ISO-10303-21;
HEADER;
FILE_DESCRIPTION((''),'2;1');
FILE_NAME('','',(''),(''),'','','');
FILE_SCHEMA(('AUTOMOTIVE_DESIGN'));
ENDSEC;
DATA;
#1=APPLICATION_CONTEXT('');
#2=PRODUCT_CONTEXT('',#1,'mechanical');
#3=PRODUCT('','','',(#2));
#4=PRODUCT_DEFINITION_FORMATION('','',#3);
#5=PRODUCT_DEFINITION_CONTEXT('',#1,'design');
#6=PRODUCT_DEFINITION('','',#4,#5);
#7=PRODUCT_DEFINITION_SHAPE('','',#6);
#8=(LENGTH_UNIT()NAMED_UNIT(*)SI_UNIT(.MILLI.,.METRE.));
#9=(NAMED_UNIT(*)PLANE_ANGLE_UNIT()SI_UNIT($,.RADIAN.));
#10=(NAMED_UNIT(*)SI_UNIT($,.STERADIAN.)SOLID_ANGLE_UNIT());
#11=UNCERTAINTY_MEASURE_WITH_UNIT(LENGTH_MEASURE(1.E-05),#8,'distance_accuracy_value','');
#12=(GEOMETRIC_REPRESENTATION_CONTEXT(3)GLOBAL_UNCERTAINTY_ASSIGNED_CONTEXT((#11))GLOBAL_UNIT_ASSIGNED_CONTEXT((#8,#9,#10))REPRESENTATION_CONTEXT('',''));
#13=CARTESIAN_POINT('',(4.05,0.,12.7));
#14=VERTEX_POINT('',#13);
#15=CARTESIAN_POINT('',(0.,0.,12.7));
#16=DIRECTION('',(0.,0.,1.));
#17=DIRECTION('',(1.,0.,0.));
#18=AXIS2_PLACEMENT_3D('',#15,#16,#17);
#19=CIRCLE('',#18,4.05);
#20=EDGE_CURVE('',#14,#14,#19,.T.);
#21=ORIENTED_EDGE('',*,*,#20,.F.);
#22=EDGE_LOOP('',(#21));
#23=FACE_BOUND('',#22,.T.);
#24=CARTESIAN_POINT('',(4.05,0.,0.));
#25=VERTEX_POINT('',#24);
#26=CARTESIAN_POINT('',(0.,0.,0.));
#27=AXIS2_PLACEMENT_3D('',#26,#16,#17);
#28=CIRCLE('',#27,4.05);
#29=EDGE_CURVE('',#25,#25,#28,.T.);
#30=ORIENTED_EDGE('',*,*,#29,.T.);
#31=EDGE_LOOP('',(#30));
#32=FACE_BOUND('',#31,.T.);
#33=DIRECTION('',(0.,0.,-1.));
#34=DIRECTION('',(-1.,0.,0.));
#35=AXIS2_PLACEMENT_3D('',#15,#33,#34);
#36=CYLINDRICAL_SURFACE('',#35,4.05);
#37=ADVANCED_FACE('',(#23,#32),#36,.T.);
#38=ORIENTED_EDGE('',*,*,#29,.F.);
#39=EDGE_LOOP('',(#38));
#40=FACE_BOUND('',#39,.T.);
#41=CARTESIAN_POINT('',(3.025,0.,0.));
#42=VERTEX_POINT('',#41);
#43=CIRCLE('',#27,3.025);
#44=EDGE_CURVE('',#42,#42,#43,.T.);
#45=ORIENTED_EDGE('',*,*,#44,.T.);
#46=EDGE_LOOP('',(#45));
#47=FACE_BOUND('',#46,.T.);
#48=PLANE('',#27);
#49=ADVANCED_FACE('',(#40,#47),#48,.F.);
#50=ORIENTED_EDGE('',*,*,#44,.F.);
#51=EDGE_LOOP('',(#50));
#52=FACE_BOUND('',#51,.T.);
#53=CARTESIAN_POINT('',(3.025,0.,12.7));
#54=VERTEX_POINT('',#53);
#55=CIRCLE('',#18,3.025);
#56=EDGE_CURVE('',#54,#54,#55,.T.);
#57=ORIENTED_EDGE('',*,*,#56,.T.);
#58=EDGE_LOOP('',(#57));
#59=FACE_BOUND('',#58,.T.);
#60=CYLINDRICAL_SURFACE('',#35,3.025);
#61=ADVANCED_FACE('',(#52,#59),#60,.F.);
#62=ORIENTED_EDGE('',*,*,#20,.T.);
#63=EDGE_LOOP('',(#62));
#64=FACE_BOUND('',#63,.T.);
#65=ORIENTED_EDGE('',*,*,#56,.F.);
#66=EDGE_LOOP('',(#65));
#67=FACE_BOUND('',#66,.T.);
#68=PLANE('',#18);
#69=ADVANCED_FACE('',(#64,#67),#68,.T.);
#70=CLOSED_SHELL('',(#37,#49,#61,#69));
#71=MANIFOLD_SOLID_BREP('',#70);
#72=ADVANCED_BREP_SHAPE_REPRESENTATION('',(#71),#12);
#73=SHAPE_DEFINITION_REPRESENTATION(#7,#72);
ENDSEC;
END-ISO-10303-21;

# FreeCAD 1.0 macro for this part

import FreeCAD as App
import Part
import Sketcher

V = App.Vector
Q = App.Units.Quantity

doc = App.newDocument("Part")
body = doc.addObject("PartDesign::Body", "Body")

sketch1 = body.newObject("Sketcher::SketchObject", "Sketch")
sketch1.AttachmentSupport = (doc.getObject("XY_Plane"), [""])
sketch1.MapMode = "FlatFace"
sketch1.addGeometry(Part.Circle(V(0, 0, 0), V(0, 0, 1), 4.05), False)
sketch1.addGeometry(Part.Circle(V(0, 0, 0), V(0, 0, 1), 3.025), False)
sketch1.addConstraint(Sketcher.Constraint("Coincident", 0, 3, -1, 1))
sketch1.addConstraint(Sketcher.Constraint("Coincident", 1, 3, -1, 1))
sketch1.addConstraint(Sketcher.Constraint("Diameter", 0, Q("8.1 mm")))
sketch1.addConstraint(Sketcher.Constraint("Diameter", 1, Q("6.05 mm")))
pad1 = body.newObject("PartDesign::Pad", "Pad")
pad1.Profile = sketch1
pad1.Length = 12.7

doc.recompute()
